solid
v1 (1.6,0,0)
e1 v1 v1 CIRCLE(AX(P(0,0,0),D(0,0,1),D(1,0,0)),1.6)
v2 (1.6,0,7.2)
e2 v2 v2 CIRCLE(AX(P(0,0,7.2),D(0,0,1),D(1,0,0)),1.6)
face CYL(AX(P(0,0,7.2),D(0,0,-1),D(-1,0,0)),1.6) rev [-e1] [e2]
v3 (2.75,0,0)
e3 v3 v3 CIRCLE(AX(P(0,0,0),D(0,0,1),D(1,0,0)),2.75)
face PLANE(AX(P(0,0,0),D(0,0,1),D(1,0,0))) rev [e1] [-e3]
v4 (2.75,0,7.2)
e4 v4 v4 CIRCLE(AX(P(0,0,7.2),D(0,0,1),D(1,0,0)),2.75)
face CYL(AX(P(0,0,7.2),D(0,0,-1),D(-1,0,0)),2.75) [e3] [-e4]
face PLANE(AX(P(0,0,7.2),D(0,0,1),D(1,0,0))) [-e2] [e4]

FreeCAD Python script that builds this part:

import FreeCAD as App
import Part
import Sketcher

V = App.Vector

doc = App.newDocument("Part")
body = doc.addObject("PartDesign::Body", "Body")

# Sketch on XY plane
sketch1 = body.newObject("Sketcher::SketchObject", "Sketch")
sketch1.AttachmentSupport = (doc.getObject("XY_Plane"), [""])
sketch1.MapMode = "FlatFace"
sketch1.addGeometry(Part.Circle(V(0, 0, 0), V(0, 0, 1), 2.75), False)
sketch1.addGeometry(Part.Circle(V(0, 0, 0), V(0, 0, 1), 1.6), False)
sketch1.addConstraint(Sketcher.Constraint("Coincident", 0, 3, -1, 1))
sketch1.addConstraint(Sketcher.Constraint("Coincident", 1, 3, -1, 1))
sketch1.addConstraint(Sketcher.Constraint("Diameter", 0, 5.5))
sketch1.addConstraint(Sketcher.Constraint("Diameter", 1, 3.2))
pad1 = body.newObject("PartDesign::Pad", "Pad")
pad1.Profile = sketch1
pad1.Length = 7.2

doc.recompute()
